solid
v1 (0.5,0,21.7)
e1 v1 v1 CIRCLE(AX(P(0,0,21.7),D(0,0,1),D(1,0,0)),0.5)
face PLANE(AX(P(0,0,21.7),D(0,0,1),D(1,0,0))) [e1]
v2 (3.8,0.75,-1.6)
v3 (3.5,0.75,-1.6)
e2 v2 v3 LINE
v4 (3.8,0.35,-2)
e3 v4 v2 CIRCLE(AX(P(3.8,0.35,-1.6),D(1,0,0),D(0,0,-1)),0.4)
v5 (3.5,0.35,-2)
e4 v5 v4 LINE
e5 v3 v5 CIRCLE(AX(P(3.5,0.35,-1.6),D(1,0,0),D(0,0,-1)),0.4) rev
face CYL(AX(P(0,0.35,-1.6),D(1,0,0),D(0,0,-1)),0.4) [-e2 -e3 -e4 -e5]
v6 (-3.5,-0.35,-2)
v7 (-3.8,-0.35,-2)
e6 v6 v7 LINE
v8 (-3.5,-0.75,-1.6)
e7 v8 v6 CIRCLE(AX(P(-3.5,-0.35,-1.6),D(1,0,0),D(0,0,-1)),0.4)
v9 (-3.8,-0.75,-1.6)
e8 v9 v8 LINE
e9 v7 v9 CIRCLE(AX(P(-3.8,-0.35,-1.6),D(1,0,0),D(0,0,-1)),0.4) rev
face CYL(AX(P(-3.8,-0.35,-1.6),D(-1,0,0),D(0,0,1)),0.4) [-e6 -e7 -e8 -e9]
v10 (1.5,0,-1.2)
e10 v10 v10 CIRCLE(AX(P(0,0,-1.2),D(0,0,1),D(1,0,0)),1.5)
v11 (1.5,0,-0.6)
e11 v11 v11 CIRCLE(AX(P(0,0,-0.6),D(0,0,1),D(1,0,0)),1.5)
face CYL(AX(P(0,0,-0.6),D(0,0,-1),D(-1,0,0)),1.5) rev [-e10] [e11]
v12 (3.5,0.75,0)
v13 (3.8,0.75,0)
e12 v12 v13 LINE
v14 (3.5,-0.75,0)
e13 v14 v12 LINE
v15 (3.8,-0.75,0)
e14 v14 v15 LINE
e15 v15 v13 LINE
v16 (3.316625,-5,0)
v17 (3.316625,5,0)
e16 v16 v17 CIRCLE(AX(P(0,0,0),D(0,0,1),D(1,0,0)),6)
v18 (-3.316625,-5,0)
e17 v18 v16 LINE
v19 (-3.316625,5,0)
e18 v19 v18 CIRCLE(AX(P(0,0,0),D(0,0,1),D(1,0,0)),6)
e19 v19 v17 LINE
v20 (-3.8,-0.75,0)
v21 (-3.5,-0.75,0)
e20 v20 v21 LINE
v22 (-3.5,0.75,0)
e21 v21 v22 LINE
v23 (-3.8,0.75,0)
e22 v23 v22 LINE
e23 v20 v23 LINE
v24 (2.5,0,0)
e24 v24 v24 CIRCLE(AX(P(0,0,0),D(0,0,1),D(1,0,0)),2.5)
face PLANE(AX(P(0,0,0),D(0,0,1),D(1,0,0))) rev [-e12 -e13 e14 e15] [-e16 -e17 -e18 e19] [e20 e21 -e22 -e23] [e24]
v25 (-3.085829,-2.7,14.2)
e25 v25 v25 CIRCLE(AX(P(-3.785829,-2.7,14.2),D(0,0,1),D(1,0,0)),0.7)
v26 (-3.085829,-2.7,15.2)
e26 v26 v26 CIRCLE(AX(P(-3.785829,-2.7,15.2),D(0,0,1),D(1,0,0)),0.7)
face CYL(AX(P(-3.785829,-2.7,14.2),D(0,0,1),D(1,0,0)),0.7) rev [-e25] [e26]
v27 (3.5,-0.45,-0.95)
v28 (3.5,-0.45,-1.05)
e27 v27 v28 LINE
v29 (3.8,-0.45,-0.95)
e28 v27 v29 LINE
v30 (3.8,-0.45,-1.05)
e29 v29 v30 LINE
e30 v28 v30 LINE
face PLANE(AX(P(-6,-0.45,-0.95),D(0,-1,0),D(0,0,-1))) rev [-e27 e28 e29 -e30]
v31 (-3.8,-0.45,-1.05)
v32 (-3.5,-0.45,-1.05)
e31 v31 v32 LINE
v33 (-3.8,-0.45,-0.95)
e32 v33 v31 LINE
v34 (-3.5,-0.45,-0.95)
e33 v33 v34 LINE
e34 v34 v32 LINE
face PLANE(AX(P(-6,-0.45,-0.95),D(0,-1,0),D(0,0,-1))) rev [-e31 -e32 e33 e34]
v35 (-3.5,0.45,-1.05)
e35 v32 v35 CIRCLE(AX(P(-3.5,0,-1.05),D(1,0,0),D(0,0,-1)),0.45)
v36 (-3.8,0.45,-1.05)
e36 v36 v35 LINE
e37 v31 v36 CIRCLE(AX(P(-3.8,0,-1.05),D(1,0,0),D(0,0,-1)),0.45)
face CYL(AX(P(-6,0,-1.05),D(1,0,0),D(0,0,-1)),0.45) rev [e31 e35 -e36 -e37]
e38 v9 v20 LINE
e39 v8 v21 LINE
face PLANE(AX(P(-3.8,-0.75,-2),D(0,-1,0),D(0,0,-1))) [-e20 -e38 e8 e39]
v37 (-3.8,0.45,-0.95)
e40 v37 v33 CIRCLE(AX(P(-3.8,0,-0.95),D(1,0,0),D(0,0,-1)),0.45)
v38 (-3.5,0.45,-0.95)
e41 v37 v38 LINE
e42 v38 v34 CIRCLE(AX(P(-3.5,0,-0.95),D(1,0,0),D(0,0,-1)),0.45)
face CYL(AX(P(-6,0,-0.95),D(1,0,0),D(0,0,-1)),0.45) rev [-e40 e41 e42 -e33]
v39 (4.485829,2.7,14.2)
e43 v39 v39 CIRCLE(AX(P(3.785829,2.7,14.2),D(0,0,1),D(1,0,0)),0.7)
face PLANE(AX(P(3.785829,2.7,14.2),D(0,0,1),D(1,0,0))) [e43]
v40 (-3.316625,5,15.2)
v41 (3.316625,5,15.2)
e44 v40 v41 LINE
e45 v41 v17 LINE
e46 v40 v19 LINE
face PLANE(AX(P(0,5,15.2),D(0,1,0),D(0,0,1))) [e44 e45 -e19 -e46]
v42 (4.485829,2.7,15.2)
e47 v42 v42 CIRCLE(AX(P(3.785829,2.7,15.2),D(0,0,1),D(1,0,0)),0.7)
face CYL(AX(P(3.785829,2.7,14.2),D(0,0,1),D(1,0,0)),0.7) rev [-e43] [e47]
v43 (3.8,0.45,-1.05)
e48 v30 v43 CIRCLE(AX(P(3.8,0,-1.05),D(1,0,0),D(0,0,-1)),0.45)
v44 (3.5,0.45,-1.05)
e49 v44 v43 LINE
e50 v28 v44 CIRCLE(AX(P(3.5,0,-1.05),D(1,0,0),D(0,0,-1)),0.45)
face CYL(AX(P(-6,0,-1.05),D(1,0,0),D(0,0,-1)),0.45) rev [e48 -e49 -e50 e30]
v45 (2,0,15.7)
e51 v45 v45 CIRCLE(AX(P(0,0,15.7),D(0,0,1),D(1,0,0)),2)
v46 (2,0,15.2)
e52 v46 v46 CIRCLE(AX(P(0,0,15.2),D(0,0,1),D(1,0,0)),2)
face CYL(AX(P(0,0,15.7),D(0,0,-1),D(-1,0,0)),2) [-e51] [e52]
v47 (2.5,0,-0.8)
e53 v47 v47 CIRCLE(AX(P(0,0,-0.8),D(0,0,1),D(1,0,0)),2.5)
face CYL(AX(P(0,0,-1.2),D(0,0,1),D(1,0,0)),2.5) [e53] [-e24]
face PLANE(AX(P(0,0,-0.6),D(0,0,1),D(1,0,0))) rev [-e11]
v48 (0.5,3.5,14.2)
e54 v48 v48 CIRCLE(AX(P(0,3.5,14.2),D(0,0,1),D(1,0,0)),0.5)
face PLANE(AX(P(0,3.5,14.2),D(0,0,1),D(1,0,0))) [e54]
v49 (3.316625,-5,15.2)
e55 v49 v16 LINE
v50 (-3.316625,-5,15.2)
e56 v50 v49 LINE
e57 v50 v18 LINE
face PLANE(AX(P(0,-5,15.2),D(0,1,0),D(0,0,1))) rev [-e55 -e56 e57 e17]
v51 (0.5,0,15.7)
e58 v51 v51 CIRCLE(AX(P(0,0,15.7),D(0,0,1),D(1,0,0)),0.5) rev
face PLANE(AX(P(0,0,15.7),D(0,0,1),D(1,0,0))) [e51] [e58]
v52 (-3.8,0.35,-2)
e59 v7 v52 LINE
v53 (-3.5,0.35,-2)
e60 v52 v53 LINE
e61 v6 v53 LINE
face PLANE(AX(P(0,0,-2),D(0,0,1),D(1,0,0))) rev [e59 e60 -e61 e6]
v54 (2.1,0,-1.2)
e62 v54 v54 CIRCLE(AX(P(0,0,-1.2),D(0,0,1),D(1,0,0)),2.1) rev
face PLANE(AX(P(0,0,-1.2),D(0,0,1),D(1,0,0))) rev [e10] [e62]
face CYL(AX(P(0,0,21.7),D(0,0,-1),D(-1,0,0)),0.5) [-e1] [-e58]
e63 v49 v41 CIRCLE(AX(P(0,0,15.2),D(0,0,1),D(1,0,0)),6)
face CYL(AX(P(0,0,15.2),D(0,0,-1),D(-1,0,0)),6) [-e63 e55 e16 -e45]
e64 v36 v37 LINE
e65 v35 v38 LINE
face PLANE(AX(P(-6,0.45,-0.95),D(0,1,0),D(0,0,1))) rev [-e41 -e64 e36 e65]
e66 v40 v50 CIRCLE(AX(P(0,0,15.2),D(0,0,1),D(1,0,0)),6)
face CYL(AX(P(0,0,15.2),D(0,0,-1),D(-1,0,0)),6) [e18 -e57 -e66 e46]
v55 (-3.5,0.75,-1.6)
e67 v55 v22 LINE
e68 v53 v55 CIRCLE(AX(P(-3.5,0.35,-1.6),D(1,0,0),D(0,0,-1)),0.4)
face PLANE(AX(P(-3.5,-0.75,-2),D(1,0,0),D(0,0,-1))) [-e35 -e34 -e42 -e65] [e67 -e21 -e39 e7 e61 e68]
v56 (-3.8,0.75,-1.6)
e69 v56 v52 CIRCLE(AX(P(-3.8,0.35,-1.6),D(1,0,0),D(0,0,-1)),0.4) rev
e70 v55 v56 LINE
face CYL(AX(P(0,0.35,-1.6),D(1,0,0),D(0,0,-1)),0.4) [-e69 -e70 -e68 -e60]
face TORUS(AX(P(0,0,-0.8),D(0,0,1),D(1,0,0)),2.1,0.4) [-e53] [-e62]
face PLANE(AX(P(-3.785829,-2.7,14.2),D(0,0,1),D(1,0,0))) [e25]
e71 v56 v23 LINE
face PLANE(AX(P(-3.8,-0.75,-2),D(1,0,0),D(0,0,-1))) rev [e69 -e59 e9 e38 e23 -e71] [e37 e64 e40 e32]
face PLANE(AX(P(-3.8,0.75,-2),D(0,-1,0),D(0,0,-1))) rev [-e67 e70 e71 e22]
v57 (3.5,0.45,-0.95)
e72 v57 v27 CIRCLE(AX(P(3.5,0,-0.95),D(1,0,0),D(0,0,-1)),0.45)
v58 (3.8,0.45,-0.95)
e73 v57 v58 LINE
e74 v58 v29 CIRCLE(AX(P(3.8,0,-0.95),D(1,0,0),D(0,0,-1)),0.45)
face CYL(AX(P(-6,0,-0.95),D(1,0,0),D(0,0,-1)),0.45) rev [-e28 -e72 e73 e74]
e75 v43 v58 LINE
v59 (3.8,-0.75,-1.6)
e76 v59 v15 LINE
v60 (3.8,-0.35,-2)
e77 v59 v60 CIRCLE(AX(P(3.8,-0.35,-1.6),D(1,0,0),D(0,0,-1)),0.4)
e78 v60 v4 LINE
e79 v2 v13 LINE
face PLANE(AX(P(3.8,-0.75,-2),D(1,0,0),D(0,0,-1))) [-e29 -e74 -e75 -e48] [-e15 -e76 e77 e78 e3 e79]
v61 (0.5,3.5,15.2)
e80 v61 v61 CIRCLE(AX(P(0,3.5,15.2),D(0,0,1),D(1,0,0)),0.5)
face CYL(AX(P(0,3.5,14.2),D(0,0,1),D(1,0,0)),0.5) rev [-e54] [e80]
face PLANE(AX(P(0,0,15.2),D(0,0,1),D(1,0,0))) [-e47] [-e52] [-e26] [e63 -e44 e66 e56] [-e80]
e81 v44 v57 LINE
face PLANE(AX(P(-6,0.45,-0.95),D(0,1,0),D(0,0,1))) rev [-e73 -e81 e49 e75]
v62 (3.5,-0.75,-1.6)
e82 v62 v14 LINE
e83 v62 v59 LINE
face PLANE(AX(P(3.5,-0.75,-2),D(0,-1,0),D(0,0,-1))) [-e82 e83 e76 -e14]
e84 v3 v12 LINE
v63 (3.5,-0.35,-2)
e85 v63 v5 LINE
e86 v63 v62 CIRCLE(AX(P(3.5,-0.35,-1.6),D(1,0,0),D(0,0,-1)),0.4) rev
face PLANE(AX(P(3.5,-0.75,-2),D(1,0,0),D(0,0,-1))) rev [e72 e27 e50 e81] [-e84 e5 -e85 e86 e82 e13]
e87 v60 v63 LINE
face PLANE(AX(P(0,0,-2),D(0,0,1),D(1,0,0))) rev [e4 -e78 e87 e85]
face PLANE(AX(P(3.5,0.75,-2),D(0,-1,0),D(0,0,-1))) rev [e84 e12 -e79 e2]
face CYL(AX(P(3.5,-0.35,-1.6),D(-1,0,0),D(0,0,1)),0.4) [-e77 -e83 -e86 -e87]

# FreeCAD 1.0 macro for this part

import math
import FreeCAD as App
import Part
import Sketcher
from FreeCAD import Vector
Q = App.Units.Quantity


def edges_at(feature, points):
    """Names of the edges that pass closest to the given points."""
    edges = feature.Shape.Edges
    near = lambda p: min(range(len(edges)), key=lambda i: edges[i].distToShape(Part.Vertex(*p))[0])
    return sorted({f"Edge{near(p) + 1}" for p in points})

doc = App.newDocument("Part")
body = doc.addObject("PartDesign::Body", "Body")

# Sketch on XY plane
sketch1 = doc.addObject("Sketcher::SketchObject", "Sketch")
body.addObject(sketch1)
sketch1.AttachmentSupport = (doc.XY_Plane, [""])
sketch1.MapMode = "FlatFace"
sketch1.addGeometry([
    Part.ArcOfCircle(Part.Circle(Vector(0, 0, 0), Vector(0, 0, 1), 6), math.radians(180), math.radians(236)),  # 0
    Part.LineSegment(Vector(-3, -5, 0), Vector(3, -5, 0)),  # 1
    Part.ArcOfCircle(Part.Circle(Vector(0, 0, 0), Vector(0, 0, 1), 6), math.radians(-56), math.radians(0)),  # 2
    Part.ArcOfCircle(Part.Circle(Vector(0, 0, 0), Vector(0, 0, 1), 6), math.radians(0), math.radians(56)),  # 3
    Part.LineSegment(Vector(3, 5, 0), Vector(-3, 5, 0)),  # 4
    Part.ArcOfCircle(Part.Circle(Vector(0, 0, 0), Vector(0, 0, 1), 6), math.radians(124), math.radians(180)),  # 5
], False)
sketch1.addConstraint([
    Sketcher.Constraint("Coincident", 0, 2, 1, 1),
    Sketcher.Constraint("Coincident", 1, 2, 2, 1),
    Sketcher.Constraint("Tangent", 2, 2, 3, 1),
    Sketcher.Constraint("Coincident", 3, 2, 4, 1),
    Sketcher.Constraint("Coincident", 4, 2, 5, 1),
    Sketcher.Constraint("Tangent", 5, 2, 0, 1),
    Sketcher.Constraint("Horizontal", 1),
    Sketcher.Constraint("Horizontal", 4),
    Sketcher.Constraint("Coincident", 0, 3, -1, 1),
    Sketcher.Constraint("Coincident", 2, 3, -1, 1),
    Sketcher.Constraint("Equal", 0, 2),
    Sketcher.Constraint("Equal", 2, 3),
    Sketcher.Constraint("Equal", 3, 5),
    Sketcher.Constraint("PointOnObject", 2, 2, -1),
    Sketcher.Constraint("PointOnObject", 5, 2, -1),
    Sketcher.Constraint("Vertical", 1, 2, 3, 2),
    Sketcher.Constraint("Radius", 0, Q("6 mm")),
    Sketcher.Constraint("DistanceY", 0, 2, -1, 1, Q("5 mm")),
])
pad1 = doc.addObject("PartDesign::Pad", "Pad")
body.addObject(pad1)
pad1.Profile = sketch1
pad1.Length = 15.2

# Sketch on XY plane
sketch2 = doc.addObject("Sketcher::SketchObject", "Sketch001")
body.addObject(sketch2)
sketch2.AttachmentSupport = (doc.XY_Plane, [""])
sketch2.MapMode = "FlatFace"
sketch2.addGeometry([
    Part.LineSegment(Vector(3.5, 0.75, 0), Vector(3.5, -0.75, 0)),  # 0
    Part.LineSegment(Vector(3.5, -0.75, 0), Vector(3.8, -0.75, 0)),  # 1
    Part.LineSegment(Vector(3.8, -0.75, 0), Vector(3.8, 0.75, 0)),  # 2
    Part.LineSegment(Vector(3.8, 0.75, 0), Vector(3.5, 0.75, 0)),  # 3
    Part.LineSegment(Vector(-3.8, 0.75, 0), Vector(-3.8, -0.75, 0)),  # 4
    Part.LineSegment(Vector(-3.8, -0.75, 0), Vector(-3.5, -0.75, 0)),  # 5
    Part.LineSegment(Vector(-3.5, -0.75, 0), Vector(-3.5, 0.75, 0)),  # 6
    Part.LineSegment(Vector(-3.5, 0.75, 0), Vector(-3.8, 0.75, 0)),  # 7
], False)
sketch2.addConstraint([
    Sketcher.Constraint("Coincident", 0, 2, 1, 1),
    Sketcher.Constraint("Coincident", 1, 2, 2, 1),
    Sketcher.Constraint("Coincident", 2, 2, 3, 1),
    Sketcher.Constraint("Coincident", 3, 2, 0, 1),
    Sketcher.Constraint("Coincident", 4, 2, 5, 1),
    Sketcher.Constraint("Coincident", 5, 2, 6, 1),
    Sketcher.Constraint("Coincident", 6, 2, 7, 1),
    Sketcher.Constraint("Coincident", 7, 2, 4, 1),
    Sketcher.Constraint("Vertical", 0),
    Sketcher.Constraint("Horizontal", 1),
    Sketcher.Constraint("Vertical", 2),
    Sketcher.Constraint("Horizontal", 3),
    Sketcher.Constraint("Vertical", 4),
    Sketcher.Constraint("Horizontal", 5),
    Sketcher.Constraint("Vertical", 6),
    Sketcher.Constraint("Horizontal", 7),
    Sketcher.Constraint("Symmetric", 2, 2, 4, 2, -1, 1),
    Sketcher.Constraint("Symmetric", 0, 2, 6, 2, -1, 1),
    Sketcher.Constraint("Horizontal", 1, 2, 4, 2),
    Sketcher.Constraint("DistanceX", 1, 1, 1, 2, Q("0.3 mm")),
    Sketcher.Constraint("DistanceY", 0, 2, 0, 1, Q("1.5 mm")),
    Sketcher.Constraint("DistanceX", 5, 2, 0, 2, Q("7 mm")),
])
pad2 = doc.addObject("PartDesign::Pad", "Pad001")
body.addObject(pad2)
pad2.Profile = sketch2
pad2.Length = 2
pad2.Reversed = True

# Sketch on YZ plane
sketch3 = doc.addObject("Sketcher::SketchObject", "Sketch002")
body.addObject(sketch3)
sketch3.AttachmentSupport = (doc.YZ_Plane, [""])
sketch3.MapMode = "FlatFace"
sketch3.AttachmentOffset = App.Placement(Vector(0, 0, 3.8), App.Rotation())
sketch3.addGeometry([
    Part.LineSegment(Vector(0.45, -1.05, 0), Vector(0.45, -0.95, 0)),
    Part.ArcOfCircle(Part.Circle(Vector(0, -0.95, 0), Vector(0, 0, 1), 0.45), math.radians(0), math.radians(180)),
    Part.LineSegment(Vector(-0.45, -0.95, 0), Vector(-0.45, -1.05, 0)),
    Part.ArcOfCircle(Part.Circle(Vector(0, -1.05, 0), Vector(0, 0, 1), 0.45), math.radians(180), math.radians(360)),
], False)
sketch3.addConstraint([
    Sketcher.Constraint("Tangent", 0, 2, 1, 1),
    Sketcher.Constraint("Tangent", 1, 2, 2, 1),
    Sketcher.Constraint("Tangent", 2, 2, 3, 1),
    Sketcher.Constraint("Tangent", 3, 2, 0, 1),
    Sketcher.Constraint("Vertical", 0),
    Sketcher.Constraint("Vertical", 2),
    Sketcher.Constraint("PointOnObject", 1, 3, -2),
    Sketcher.Constraint("Radius", 1, Q("0.45 mm")),
    Sketcher.Constraint("DistanceY", 0, 1, 0, 2, Q("0.1 mm")),
    Sketcher.Constraint("DistanceY", 1, 3, -1, 1, Q("0.95 mm")),
])
pocket1 = doc.addObject("PartDesign::Pocket", "Pocket")
body.addObject(pocket1)
pocket1.Profile = sketch3
pocket1.Type = "ThroughAll"
doc.recompute()

fillet = doc.addObject("PartDesign::Fillet", "Fillet")
body.addObject(fillet)
fillet.Base = (pocket1, edges_at(pocket1, [
    (3.65, -0.75, -2),
    (3.65, 0.75, -2),
    (-3.65, -0.75, -2),
    (-3.65, 0.75, -2),
]))
fillet.Radius = 0.4

# Sketch on XY plane
sketch4 = doc.addObject("Sketcher::SketchObject", "Sketch003")
body.addObject(sketch4)
sketch4.AttachmentSupport = (doc.XY_Plane, [""])
sketch4.MapMode = "FlatFace"
sketch4.addGeometry(Part.Circle(Vector(0, 0, 0), Vector(0, 0, 1), 2.5), False)
sketch4.addConstraint([
    Sketcher.Constraint("Coincident", 0, 3, -1, 1),
    Sketcher.Constraint("Diameter", 0, Q("5 mm")),
])
pad3 = doc.addObject("PartDesign::Pad", "Pad002")
body.addObject(pad3)
pad3.Profile = sketch4
pad3.Length = 1.2
pad3.Reversed = True

# Sketch on XY plane
sketch5 = doc.addObject("Sketcher::SketchObject", "Sketch004")
body.addObject(sketch5)
sketch5.AttachmentSupport = (doc.XY_Plane, [""])
sketch5.MapMode = "FlatFace"
sketch5.AttachmentOffset = App.Placement(Vector(0, 0, -1.2), App.Rotation())
sketch5.addGeometry(Part.Circle(Vector(0, 0, 0), Vector(0, 0, 1), 1.5), False)
sketch5.addConstraint([
    Sketcher.Constraint("Coincident", 0, 3, -1, 1),
    Sketcher.Constraint("Diameter", 0, Q("3 mm")),
])
pocket2 = doc.addObject("PartDesign::Pocket", "Pocket001")
body.addObject(pocket2)
pocket2.Profile = sketch5
pocket2.Length = 0.6
pocket2.Reversed = True
doc.recompute()

fillet2 = doc.addObject("PartDesign::Fillet", "Fillet001")
body.addObject(fillet2)
fillet2.Base = (pocket2, edges_at(pocket2, [(-2.5, 0, -1.2)]))
fillet2.Radius = 0.4

# Sketch on XY plane
sketch6 = doc.addObject("Sketcher::SketchObject", "Sketch005")
body.addObject(sketch6)
sketch6.AttachmentSupport = (doc.XY_Plane, [""])
sketch6.MapMode = "FlatFace"
sketch6.AttachmentOffset = App.Placement(Vector(0, 0, 15.2), App.Rotation())
sketch6.addGeometry(Part.Circle(Vector(0, 0, 0), Vector(0, 0, 1), 2), False)
sketch6.addConstraint([
    Sketcher.Constraint("Coincident", 0, 3, -1, 1),
    Sketcher.Constraint("Diameter", 0, Q("4 mm")),
])
pad4 = doc.addObject("PartDesign::Pad", "Pad003")
body.addObject(pad4)
pad4.Profile = sketch6
pad4.Length = 0.5

# Sketch on XY plane
sketch7 = doc.addObject("Sketcher::SketchObject", "Sketch006")
body.addObject(sketch7)
sketch7.AttachmentSupport = (doc.XY_Plane, [""])
sketch7.MapMode = "FlatFace"
sketch7.AttachmentOffset = App.Placement(Vector(0, 0, 15.2), App.Rotation())
sketch7.addGeometry(Part.Circle(Vector(0, 0, 0), Vector(0, 0, 1), 0.5), False)
sketch7.addConstraint([
    Sketcher.Constraint("Coincident", 0, 3, -1, 1),
    Sketcher.Constraint("Diameter", 0, Q("1 mm")),
])
pad5 = doc.addObject("PartDesign::Pad", "Pad004")
body.addObject(pad5)
pad5.Profile = sketch7
pad5.Length = 6.5

# Sketch on XY plane
sketch8 = doc.addObject("Sketcher::SketchObject", "Sketch007")
body.addObject(sketch8)
sketch8.AttachmentSupport = (doc.XY_Plane, [""])
sketch8.MapMode = "FlatFace"
sketch8.AttachmentOffset = App.Placement(Vector(0, 0, 15.2), App.Rotation())
sketch8.addGeometry([
    Part.Circle(Vector(-3.8, -2.7, 0), Vector(0, 0, 1), 0.7),
    Part.Circle(Vector(3.8, 2.7, 0), Vector(0, 0, 1), 0.7),
    Part.Circle(Vector(0, 3.5, 0), Vector(0, 0, 1), 0.5),
], False)
sketch8.addConstraint([
    Sketcher.Constraint("Equal", 0, 1),
    Sketcher.Constraint("Symmetric", 0, 3, 1, 3, -1, 1),
    Sketcher.Constraint("PointOnObject", 2, 3, -2),
    Sketcher.Constraint("Diameter", 2, Q("1 mm")),
    Sketcher.Constraint("Diameter", 0, Q("1.4 mm")),
    Sketcher.Constraint("DistanceY", 0, 3, -1, 1, Q("2.7 mm")),
    Sketcher.Constraint("DistanceY", -1, 1, 2, 3, Q("3.5 mm")),
    Sketcher.Constraint("DistanceX", 0, 3, -1, 1, Q("3.785829 mm")),
])
pocket3 = doc.addObject("PartDesign::Pocket", "Pocket002")
body.addObject(pocket3)
pocket3.Profile = sketch8
pocket3.Length = 1

doc.recompute()
